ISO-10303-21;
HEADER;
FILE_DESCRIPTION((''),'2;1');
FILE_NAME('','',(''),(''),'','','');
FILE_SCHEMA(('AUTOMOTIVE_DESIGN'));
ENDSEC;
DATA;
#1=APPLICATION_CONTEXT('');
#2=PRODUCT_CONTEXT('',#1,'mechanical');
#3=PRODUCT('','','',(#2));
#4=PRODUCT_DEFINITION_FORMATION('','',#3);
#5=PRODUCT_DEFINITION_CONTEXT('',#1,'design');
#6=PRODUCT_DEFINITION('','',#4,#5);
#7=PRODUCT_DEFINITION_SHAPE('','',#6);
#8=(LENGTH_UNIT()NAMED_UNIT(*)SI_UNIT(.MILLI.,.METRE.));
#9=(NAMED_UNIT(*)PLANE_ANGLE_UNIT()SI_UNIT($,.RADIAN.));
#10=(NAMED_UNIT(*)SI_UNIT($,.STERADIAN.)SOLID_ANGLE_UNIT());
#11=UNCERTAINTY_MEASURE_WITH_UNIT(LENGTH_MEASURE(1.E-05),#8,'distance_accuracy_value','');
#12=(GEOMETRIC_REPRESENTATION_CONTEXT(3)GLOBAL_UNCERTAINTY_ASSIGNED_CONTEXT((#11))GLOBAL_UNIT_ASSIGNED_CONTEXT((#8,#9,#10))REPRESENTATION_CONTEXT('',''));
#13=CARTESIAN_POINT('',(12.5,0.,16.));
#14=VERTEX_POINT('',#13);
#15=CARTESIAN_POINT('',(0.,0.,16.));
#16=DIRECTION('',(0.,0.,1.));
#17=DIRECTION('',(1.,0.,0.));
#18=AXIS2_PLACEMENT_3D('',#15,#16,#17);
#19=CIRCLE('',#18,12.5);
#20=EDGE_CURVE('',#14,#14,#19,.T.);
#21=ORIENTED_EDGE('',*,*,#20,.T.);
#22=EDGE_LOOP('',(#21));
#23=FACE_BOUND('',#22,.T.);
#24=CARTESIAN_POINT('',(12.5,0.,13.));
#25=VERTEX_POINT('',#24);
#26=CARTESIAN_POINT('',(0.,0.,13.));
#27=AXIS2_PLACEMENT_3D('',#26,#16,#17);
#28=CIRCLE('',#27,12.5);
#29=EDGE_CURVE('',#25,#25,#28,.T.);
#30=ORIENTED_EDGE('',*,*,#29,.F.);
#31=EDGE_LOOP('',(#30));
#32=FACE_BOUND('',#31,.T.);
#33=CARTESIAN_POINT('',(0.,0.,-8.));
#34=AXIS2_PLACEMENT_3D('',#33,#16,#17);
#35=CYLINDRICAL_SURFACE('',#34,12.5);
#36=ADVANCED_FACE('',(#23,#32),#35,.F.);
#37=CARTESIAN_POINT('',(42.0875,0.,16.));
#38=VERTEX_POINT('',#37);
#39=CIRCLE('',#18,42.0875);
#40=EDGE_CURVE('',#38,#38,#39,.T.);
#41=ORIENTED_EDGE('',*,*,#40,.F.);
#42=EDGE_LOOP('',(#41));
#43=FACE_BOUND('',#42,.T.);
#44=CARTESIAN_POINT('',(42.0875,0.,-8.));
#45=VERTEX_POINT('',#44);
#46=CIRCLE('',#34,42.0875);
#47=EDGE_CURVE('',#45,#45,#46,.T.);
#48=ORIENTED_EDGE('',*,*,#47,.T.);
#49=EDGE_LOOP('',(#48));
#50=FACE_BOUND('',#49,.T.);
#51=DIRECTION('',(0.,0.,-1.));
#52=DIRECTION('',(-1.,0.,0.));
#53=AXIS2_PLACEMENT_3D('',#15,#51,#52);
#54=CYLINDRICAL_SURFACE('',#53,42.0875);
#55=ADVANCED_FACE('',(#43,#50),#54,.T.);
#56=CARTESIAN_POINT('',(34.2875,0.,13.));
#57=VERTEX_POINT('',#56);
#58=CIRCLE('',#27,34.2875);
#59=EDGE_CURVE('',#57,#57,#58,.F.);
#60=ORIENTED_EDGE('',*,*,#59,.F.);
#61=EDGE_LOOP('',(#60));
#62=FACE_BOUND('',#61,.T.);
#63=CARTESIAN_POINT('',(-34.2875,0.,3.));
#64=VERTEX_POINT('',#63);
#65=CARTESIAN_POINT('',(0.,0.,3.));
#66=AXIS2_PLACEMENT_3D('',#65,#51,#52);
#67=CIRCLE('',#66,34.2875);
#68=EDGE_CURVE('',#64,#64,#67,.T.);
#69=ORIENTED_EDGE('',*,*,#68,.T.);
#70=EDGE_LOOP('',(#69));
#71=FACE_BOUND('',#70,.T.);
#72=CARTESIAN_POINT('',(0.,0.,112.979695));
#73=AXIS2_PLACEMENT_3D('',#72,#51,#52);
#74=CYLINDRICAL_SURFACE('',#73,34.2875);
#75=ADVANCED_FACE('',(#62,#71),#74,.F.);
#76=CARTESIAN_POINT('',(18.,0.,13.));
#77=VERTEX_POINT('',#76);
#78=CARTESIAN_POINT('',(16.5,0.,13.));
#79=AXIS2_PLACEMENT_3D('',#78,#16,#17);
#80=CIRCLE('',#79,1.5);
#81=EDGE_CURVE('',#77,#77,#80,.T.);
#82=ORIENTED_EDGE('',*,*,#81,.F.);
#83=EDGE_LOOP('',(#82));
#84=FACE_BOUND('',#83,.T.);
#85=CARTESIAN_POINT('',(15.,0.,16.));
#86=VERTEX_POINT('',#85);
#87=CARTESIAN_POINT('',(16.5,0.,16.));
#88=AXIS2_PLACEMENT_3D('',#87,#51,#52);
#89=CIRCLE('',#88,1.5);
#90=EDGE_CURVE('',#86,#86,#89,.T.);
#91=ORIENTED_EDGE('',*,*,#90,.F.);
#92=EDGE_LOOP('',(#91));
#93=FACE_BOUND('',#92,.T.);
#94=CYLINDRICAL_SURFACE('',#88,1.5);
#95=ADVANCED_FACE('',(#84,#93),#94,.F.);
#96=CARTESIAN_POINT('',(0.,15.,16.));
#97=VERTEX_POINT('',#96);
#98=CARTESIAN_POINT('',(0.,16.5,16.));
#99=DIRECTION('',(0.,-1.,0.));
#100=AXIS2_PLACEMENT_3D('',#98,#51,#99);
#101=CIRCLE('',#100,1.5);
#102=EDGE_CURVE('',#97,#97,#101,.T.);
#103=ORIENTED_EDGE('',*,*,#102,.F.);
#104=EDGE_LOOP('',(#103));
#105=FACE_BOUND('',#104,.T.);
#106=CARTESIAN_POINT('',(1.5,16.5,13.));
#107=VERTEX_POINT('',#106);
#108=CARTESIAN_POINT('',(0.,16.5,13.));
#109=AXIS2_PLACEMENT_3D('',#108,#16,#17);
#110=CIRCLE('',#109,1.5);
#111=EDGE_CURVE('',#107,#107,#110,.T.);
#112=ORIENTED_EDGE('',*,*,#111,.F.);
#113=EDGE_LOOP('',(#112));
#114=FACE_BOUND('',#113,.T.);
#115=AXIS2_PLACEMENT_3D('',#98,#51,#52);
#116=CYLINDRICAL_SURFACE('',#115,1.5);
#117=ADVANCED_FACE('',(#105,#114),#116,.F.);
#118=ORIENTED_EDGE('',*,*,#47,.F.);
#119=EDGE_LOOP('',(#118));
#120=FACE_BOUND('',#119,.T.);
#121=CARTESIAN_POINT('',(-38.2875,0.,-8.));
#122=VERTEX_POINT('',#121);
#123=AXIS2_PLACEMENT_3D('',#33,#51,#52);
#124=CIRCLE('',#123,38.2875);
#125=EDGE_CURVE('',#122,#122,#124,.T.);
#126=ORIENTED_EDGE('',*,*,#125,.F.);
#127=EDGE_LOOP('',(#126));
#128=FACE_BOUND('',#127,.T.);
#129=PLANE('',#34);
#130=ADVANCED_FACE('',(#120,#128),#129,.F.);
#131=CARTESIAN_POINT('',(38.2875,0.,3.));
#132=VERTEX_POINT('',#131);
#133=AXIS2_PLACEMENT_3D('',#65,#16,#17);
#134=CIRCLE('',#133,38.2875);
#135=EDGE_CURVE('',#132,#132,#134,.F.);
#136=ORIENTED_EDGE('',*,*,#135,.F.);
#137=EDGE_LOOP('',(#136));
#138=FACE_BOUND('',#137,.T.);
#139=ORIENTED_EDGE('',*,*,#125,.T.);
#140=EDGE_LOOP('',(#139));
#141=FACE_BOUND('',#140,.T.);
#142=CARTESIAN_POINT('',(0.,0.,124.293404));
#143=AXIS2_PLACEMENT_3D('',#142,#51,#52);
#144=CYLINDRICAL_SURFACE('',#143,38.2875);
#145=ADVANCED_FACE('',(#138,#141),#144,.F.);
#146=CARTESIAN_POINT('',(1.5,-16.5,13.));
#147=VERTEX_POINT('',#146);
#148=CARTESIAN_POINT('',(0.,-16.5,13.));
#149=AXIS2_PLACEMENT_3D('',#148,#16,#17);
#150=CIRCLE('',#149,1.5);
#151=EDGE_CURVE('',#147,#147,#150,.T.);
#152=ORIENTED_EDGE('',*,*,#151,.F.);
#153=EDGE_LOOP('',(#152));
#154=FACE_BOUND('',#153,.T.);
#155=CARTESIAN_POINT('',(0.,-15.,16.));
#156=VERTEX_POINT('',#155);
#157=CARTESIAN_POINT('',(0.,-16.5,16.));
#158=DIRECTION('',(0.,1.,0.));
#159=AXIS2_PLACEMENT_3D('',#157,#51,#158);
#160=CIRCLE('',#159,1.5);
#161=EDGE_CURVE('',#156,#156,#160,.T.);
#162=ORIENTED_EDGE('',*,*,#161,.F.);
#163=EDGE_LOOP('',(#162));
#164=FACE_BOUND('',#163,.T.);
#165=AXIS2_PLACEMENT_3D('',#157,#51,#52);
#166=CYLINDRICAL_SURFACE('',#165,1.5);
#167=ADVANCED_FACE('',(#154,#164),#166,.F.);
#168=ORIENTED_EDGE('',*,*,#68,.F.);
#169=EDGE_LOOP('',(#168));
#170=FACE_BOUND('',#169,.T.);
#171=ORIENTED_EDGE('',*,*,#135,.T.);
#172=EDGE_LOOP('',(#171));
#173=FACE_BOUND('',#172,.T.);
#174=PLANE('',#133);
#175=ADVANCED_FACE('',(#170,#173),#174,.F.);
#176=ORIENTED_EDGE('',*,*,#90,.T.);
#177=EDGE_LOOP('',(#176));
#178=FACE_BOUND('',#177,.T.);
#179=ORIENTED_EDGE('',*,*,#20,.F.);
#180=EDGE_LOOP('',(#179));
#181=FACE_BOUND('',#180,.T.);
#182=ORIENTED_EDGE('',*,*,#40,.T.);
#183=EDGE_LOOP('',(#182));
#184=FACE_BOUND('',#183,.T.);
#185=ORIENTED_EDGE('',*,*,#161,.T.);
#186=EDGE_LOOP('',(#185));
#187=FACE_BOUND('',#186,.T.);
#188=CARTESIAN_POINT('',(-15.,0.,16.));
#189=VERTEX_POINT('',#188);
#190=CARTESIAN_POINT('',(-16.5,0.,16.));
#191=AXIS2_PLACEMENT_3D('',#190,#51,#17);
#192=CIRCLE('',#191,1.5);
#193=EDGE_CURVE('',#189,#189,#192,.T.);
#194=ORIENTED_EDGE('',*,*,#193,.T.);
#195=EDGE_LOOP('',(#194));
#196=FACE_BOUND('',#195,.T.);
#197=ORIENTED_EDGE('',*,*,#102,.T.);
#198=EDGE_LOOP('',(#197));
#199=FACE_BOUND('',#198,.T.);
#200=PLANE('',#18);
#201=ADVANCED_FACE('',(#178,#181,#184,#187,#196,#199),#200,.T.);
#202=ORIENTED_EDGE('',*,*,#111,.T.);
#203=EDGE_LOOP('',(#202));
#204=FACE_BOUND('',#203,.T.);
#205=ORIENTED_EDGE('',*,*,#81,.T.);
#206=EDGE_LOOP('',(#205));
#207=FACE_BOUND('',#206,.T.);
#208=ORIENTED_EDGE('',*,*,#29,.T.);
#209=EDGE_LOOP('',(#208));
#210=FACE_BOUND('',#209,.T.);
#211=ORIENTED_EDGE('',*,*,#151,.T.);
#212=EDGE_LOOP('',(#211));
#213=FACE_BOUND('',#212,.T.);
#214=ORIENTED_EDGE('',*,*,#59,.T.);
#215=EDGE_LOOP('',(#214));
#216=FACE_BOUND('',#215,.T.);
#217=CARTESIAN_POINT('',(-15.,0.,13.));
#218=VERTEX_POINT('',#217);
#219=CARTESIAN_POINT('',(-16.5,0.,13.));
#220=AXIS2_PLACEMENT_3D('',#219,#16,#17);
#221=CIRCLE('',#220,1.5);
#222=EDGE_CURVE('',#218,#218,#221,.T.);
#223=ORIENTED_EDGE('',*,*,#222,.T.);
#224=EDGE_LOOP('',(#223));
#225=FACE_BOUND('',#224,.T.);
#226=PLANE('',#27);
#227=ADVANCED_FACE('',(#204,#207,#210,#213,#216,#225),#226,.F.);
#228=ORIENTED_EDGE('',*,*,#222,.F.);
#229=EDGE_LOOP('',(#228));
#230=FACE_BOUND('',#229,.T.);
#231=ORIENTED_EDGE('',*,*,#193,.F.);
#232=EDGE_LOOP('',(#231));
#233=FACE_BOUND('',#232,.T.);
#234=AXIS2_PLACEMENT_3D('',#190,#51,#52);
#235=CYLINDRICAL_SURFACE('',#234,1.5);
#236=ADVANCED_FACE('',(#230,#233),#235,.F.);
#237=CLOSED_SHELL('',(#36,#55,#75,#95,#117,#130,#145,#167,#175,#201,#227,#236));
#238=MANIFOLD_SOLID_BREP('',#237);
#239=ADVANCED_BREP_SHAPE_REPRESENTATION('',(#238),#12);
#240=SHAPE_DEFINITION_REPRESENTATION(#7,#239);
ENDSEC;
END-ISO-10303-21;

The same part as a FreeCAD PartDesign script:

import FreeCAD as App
import Part
import Sketcher

doc = App.newDocument("Part")
params = doc.addObject("Spreadsheet::Sheet", "Params")
for row, (alias, value) in enumerate([
    ("pad1_length", "24 mm"),
    ("pocket1_length", "11 mm"),
    ("pocket2_length", "10 mm"),
    ("sketch4_diameter", "25 mm"),
    ("sketch5_diameter", "3 mm"),
    ("pocket4_length", "26 mm"),
], start=1):
    params.set(f"A{row}", alias)
    params.set(f"B{row}", "=" + value)
    params.setAlias(f"B{row}", alias)

body = doc.addObject("PartDesign::Body", "Body")

# Sketch on XY plane
sketch1 = body.newObject("Sketcher::SketchObject", "Sketch")
sketch1.AttachmentSupport = (doc.getObject("XY_Plane"), [""])
sketch1.MapMode = "FlatFace"
sketch1.AttachmentOffset = App.Placement(App.Vector(0, 0, -8), App.Rotation())
sketch1.addGeometry(Part.Circle(App.Vector(0, 0, 0), App.Vector(0, 0, 1), 42.0875), False)
sketch1.addConstraint(Sketcher.Constraint("Coincident", 0, 3, -1, 1))
sketch1.addConstraint(Sketcher.Constraint("Diameter", 0, 84.175))
pad1 = body.newObject("PartDesign::Pad", "Pad")
pad1.Profile = sketch1
pad1.setExpression("Length", "Params.pad1_length")

# Sketch on XY plane
sketch2 = body.newObject("Sketcher::SketchObject", "Sketch001")
sketch2.AttachmentSupport = (doc.getObject("XY_Plane"), [""])
sketch2.MapMode = "FlatFace"
sketch2.AttachmentOffset = App.Placement(App.Vector(0, 0, -8), App.Rotation())
sketch2.addGeometry(Part.Circle(App.Vector(0, 0, 0), App.Vector(0, 0, 1), 38.2875), False)
sketch2.addConstraint(Sketcher.Constraint("Coincident", 0, 3, -1, 1))
sketch2.addConstraint(Sketcher.Constraint("Diameter", 0, 76.575))
pocket1 = body.newObject("PartDesign::Pocket", "Pocket")
pocket1.Profile = sketch2
pocket1.setExpression("Length", "Params.pocket1_length")
pocket1.Reversed = True

# Sketch on XY plane
sketch3 = body.newObject("Sketcher::SketchObject", "Sketch002")
sketch3.AttachmentSupport = (doc.getObject("XY_Plane"), [""])
sketch3.MapMode = "FlatFace"
sketch3.AttachmentOffset = App.Placement(App.Vector(0, 0, 3), App.Rotation())
sketch3.addGeometry(Part.Circle(App.Vector(0, 0, 0), App.Vector(0, 0, 1), 34.2875), False)
sketch3.addConstraint(Sketcher.Constraint("Coincident", 0, 3, -1, 1))
sketch3.addConstraint(Sketcher.Constraint("Diameter", 0, 68.575))
pocket2 = body.newObject("PartDesign::Pocket", "Pocket001")
pocket2.Profile = sketch3
pocket2.setExpression("Length", "Params.pocket2_length")
pocket2.Reversed = True

# Sketch on XY plane
sketch4 = body.newObject("Sketcher::SketchObject", "Sketch003")
sketch4.AttachmentSupport = (doc.getObject("XY_Plane"), [""])
sketch4.MapMode = "FlatFace"
sketch4.AttachmentOffset = App.Placement(App.Vector(0, 0, 16), App.Rotation())
sketch4.addGeometry(Part.Circle(App.Vector(0, 0, 0), App.Vector(0, 0, 1), 12.5), False)
sketch4.addConstraint(Sketcher.Constraint("Coincident", 0, 3, -1, 1))
sketch4.addConstraint(Sketcher.Constraint("Diameter", 0, 25.0))
sketch4.setExpression("Constraints[1]", "Params.sketch4_diameter")
pocket3 = body.newObject("PartDesign::Pocket", "Pocket002")
pocket3.Profile = sketch4
pocket3.Type = "ThroughAll"
pocket3.Midplane = True

# Sketch on XY plane
sketch5 = body.newObject("Sketcher::SketchObject", "Sketch004")
sketch5.AttachmentSupport = (doc.getObject("XY_Plane"), [""])
sketch5.MapMode = "FlatFace"
sketch5.AttachmentOffset = App.Placement(App.Vector(0, 0, 17), App.Rotation())
sketch5.addGeometry(Part.Circle(App.Vector(16.5, 0, 0), App.Vector(0, 0, 1), 1.5), False)
sketch5.addConstraint(Sketcher.Constraint("PointOnObject", 0, 3, -1))
sketch5.addConstraint(Sketcher.Constraint("Diameter", 0, 3.0))
sketch5.addConstraint(Sketcher.Constraint("DistanceX", -1, 1, 0, 3, 16.5))
sketch5.setExpression("Constraints[1]", "Params.sketch5_diameter")
pocket4 = body.newObject("PartDesign::Pocket", "Pocket003")
pocket4.Profile = sketch5
pocket4.setExpression("Length", "Params.pocket4_length")
doc.recompute()

polarpattern = body.newObject("PartDesign::PolarPattern", "PolarPattern")
polarpattern.Originals = [pocket4]
polarpattern.Axis = (doc.getObject("Z_Axis"), [""])
polarpattern.Angle = 360
polarpattern.Occurrences = 4
body.Tip = polarpattern

doc.recompute()
